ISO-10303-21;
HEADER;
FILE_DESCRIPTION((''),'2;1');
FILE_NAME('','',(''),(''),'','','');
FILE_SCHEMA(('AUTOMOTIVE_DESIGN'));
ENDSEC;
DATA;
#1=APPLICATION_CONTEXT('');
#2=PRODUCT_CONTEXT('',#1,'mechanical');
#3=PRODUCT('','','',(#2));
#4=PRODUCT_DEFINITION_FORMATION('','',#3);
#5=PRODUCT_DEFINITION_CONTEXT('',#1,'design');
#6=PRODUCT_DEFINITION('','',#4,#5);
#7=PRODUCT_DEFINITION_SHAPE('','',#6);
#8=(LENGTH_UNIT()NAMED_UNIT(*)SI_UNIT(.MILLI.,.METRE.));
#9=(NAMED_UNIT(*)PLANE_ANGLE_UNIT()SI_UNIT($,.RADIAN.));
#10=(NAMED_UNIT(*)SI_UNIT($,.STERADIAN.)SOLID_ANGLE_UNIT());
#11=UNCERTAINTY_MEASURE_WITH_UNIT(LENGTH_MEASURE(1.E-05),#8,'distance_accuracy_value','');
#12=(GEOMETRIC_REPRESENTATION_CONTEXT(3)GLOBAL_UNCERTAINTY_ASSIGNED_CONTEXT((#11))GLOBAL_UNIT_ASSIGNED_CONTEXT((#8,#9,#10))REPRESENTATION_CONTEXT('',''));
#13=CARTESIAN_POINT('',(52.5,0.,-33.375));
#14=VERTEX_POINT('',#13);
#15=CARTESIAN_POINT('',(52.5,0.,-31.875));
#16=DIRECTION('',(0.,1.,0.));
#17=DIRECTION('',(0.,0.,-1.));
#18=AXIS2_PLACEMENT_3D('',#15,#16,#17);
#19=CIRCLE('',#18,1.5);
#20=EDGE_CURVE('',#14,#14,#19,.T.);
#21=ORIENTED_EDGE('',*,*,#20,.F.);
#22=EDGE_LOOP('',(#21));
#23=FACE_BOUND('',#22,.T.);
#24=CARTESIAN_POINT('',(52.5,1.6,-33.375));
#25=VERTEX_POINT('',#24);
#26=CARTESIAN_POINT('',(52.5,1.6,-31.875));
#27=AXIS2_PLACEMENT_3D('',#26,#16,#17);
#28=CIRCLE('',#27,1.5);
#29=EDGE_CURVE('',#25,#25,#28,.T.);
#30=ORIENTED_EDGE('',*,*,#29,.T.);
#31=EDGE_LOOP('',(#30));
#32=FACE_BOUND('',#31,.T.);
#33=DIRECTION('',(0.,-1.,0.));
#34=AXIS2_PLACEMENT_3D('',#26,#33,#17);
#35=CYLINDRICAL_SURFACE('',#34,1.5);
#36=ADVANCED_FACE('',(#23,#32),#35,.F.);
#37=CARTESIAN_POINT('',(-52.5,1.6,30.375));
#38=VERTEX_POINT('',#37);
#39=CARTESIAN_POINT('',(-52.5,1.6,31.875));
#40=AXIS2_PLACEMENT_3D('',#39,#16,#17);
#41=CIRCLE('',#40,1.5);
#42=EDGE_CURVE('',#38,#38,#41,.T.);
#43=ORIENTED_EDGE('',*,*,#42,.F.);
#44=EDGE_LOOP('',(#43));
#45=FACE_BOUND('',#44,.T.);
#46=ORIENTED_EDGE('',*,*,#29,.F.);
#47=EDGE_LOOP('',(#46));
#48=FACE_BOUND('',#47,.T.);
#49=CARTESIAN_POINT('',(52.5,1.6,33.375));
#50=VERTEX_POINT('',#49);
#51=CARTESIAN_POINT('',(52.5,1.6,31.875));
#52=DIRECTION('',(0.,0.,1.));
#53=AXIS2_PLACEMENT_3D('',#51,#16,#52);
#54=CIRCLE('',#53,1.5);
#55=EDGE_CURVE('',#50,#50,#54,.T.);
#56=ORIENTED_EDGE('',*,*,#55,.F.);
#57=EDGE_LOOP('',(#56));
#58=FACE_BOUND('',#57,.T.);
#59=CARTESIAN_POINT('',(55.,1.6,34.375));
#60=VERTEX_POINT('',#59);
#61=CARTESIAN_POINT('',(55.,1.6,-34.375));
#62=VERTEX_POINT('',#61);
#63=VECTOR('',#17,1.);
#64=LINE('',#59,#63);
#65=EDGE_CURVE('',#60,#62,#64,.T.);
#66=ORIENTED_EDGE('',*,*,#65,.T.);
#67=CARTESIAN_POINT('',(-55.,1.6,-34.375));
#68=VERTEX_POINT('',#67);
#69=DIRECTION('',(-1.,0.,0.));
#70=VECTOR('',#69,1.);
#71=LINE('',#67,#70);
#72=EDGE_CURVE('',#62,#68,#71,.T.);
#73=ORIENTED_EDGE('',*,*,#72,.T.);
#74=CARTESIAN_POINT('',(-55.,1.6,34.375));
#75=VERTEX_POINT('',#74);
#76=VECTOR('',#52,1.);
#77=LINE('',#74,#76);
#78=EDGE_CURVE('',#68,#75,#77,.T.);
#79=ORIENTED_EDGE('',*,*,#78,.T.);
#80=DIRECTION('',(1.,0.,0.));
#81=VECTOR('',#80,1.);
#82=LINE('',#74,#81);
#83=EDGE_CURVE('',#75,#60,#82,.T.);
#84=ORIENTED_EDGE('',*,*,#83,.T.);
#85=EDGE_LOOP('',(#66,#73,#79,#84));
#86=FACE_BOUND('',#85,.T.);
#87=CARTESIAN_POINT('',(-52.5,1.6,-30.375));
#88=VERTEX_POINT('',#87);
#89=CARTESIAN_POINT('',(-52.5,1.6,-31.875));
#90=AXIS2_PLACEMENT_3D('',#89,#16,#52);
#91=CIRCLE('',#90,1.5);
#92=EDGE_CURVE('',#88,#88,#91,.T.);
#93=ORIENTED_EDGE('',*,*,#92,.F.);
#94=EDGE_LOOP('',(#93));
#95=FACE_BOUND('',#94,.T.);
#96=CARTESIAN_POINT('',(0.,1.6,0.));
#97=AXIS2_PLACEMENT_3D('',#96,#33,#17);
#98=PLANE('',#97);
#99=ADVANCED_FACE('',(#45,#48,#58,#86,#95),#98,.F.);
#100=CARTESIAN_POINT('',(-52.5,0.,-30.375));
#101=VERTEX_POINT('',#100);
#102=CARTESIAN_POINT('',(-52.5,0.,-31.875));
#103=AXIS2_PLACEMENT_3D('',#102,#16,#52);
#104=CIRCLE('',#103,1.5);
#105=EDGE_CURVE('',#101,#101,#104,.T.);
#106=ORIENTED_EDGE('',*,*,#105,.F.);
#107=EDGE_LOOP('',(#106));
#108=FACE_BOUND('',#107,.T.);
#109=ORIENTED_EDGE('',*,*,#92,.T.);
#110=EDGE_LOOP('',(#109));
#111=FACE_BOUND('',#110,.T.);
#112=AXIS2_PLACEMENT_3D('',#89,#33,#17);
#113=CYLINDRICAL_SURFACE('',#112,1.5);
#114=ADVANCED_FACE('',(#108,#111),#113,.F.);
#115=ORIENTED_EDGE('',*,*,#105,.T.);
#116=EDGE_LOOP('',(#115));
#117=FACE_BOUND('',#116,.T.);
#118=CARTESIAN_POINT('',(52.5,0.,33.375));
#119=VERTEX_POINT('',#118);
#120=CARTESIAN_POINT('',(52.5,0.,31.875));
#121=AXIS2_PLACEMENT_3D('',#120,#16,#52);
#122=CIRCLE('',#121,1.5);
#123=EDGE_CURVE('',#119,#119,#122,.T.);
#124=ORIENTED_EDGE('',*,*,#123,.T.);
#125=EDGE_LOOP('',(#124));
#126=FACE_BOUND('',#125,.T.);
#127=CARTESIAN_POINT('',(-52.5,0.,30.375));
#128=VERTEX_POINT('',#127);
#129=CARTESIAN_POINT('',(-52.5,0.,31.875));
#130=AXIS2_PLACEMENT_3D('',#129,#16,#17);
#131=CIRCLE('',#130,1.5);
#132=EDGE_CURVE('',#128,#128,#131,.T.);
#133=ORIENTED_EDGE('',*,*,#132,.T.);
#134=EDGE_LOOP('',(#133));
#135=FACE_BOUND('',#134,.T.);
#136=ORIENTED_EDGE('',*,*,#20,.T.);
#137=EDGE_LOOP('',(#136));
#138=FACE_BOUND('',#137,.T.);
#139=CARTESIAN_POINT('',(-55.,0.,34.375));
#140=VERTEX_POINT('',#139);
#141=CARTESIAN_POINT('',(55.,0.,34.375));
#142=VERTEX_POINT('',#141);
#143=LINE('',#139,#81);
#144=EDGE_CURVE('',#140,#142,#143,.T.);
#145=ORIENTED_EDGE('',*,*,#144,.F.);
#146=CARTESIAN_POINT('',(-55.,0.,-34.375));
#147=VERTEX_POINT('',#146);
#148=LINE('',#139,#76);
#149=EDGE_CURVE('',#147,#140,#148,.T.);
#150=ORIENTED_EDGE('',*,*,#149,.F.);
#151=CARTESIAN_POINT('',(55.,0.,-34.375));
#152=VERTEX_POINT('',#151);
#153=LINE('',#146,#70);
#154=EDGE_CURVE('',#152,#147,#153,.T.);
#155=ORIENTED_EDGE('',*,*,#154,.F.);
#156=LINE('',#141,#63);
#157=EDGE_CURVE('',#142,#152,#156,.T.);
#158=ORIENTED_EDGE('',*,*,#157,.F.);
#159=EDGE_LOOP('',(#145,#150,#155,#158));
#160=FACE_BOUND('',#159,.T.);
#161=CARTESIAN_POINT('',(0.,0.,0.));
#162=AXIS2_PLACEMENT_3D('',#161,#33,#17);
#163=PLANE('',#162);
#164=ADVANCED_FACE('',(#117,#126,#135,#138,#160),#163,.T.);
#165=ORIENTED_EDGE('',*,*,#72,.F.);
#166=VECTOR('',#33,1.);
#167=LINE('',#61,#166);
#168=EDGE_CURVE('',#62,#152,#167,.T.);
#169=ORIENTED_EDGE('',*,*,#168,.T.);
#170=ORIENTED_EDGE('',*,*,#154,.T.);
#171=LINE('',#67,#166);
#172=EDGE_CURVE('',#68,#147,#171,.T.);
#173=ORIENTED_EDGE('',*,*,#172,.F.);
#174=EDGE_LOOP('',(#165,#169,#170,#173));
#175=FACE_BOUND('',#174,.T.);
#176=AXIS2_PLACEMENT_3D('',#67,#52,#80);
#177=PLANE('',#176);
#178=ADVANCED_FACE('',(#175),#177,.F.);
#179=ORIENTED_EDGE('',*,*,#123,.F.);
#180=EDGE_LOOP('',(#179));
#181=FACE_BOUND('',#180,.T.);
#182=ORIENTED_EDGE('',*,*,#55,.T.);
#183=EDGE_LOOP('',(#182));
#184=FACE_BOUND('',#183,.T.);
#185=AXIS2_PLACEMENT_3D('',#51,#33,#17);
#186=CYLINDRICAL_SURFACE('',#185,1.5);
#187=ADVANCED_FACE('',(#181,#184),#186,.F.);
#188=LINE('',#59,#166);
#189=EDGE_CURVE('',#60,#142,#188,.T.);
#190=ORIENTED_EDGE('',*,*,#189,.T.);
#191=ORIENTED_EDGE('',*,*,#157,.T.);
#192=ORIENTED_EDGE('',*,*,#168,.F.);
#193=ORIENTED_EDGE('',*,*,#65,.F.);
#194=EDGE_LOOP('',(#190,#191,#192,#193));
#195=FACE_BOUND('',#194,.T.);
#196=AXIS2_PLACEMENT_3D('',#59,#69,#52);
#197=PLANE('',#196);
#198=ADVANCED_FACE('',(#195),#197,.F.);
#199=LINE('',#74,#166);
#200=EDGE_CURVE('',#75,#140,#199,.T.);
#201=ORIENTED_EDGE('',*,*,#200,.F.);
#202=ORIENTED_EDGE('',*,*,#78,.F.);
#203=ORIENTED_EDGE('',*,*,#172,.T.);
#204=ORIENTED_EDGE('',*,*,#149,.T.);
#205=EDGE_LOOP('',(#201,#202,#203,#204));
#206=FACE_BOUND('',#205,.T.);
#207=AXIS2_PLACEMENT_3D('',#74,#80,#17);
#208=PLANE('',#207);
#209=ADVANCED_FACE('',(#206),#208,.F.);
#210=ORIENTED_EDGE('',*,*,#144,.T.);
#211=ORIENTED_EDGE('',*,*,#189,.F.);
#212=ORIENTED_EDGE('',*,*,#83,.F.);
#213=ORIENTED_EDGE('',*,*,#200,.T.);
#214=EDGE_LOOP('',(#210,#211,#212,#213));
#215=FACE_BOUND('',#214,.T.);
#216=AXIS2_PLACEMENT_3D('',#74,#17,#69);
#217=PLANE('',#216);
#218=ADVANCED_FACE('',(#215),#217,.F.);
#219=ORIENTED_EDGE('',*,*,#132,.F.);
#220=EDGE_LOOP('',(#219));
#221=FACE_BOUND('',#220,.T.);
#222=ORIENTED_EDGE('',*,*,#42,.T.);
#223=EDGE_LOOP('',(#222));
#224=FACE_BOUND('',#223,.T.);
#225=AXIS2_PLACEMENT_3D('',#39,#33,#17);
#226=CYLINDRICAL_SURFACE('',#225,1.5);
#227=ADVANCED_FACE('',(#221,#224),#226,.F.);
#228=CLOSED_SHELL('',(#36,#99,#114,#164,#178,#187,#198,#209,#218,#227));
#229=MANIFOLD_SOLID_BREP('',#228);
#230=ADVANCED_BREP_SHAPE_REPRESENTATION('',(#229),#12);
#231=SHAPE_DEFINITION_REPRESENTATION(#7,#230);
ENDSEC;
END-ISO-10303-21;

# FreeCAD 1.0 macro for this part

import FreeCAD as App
import Part
import Sketcher
from FreeCAD import Vector


def add_polygon(sketch, points):
    """Adds a closed chain of lines whose ends are joined by coincident constraints."""
    first, n = sketch.GeometryCount, len(points)
    for a, b in zip(points, points[1:] + points[:1]):
        sketch.addGeometry(Part.LineSegment(App.Vector(*a, 0), App.Vector(*b, 0)), False)
    for i in range(n):
        sketch.addConstraint(Sketcher.Constraint("Coincident", first + i, 2, first + (i + 1) % n, 1))

doc = App.newDocument("Part")
body = doc.addObject("PartDesign::Body", "Body")

sketch1 = body.newObject("Sketcher::SketchObject", "Sketch")
sketch1.AttachmentSupport = (doc.getObject("XZ_Plane"), [""])
sketch1.MapMode = "FlatFace"
add_polygon(sketch1, [(-55, -34.375), (-55, 34.375), (55, 34.375), (55, -34.375)])
sketch1.addGeometry(Part.Circle(Vector(-52.5, 31.875, 0), Vector(0, 0, 1), 1.5), False)
sketch1.addGeometry(Part.Circle(Vector(52.5, 31.875, 0), Vector(0, 0, 1), 1.5), False)
sketch1.addGeometry(Part.Circle(Vector(-52.5, -31.875, 0), Vector(0, 0, 1), 1.5), False)
sketch1.addGeometry(Part.Circle(Vector(52.5, -31.875, 0), Vector(0, 0, 1), 1.5), False)
sketch1.addConstraint([
    Sketcher.Constraint("Vertical", 0),
    Sketcher.Constraint("Horizontal", 1),
    Sketcher.Constraint("Vertical", 2),
    Sketcher.Constraint("Horizontal", 3),
    Sketcher.Constraint("Equal", 4, 5),
    Sketcher.Constraint("Equal", 5, 6),
    Sketcher.Constraint("Equal", 6, 7),
    Sketcher.Constraint("Symmetric", 5, 3, 6, 3, -1, 1),
    Sketcher.Constraint("Symmetric", 4, 3, 7, 3, -1, 1),
    Sketcher.Constraint("Symmetric", 0, 2, 2, 2, -1, 1),
    Sketcher.Constraint("Symmetric", 4, 3, 5, 3, -2),
    Sketcher.Constraint("Diameter", 4, 3.0),
    Sketcher.Constraint("DistanceX", 1, 1, 1, 2, 110.0),
    Sketcher.Constraint("DistanceX", 4, 3, 5, 3, 105.0),
    Sketcher.Constraint("DistanceY", 0, 1, 0, 2, 68.75),
    Sketcher.Constraint("DistanceY", 4, 3, 0, 2, 2.5),
])
pad1 = body.newObject("PartDesign::Pad", "Pad")
pad1.Profile = sketch1
pad1.Length = 1.6
pad1.Reversed = True

doc.recompute()
